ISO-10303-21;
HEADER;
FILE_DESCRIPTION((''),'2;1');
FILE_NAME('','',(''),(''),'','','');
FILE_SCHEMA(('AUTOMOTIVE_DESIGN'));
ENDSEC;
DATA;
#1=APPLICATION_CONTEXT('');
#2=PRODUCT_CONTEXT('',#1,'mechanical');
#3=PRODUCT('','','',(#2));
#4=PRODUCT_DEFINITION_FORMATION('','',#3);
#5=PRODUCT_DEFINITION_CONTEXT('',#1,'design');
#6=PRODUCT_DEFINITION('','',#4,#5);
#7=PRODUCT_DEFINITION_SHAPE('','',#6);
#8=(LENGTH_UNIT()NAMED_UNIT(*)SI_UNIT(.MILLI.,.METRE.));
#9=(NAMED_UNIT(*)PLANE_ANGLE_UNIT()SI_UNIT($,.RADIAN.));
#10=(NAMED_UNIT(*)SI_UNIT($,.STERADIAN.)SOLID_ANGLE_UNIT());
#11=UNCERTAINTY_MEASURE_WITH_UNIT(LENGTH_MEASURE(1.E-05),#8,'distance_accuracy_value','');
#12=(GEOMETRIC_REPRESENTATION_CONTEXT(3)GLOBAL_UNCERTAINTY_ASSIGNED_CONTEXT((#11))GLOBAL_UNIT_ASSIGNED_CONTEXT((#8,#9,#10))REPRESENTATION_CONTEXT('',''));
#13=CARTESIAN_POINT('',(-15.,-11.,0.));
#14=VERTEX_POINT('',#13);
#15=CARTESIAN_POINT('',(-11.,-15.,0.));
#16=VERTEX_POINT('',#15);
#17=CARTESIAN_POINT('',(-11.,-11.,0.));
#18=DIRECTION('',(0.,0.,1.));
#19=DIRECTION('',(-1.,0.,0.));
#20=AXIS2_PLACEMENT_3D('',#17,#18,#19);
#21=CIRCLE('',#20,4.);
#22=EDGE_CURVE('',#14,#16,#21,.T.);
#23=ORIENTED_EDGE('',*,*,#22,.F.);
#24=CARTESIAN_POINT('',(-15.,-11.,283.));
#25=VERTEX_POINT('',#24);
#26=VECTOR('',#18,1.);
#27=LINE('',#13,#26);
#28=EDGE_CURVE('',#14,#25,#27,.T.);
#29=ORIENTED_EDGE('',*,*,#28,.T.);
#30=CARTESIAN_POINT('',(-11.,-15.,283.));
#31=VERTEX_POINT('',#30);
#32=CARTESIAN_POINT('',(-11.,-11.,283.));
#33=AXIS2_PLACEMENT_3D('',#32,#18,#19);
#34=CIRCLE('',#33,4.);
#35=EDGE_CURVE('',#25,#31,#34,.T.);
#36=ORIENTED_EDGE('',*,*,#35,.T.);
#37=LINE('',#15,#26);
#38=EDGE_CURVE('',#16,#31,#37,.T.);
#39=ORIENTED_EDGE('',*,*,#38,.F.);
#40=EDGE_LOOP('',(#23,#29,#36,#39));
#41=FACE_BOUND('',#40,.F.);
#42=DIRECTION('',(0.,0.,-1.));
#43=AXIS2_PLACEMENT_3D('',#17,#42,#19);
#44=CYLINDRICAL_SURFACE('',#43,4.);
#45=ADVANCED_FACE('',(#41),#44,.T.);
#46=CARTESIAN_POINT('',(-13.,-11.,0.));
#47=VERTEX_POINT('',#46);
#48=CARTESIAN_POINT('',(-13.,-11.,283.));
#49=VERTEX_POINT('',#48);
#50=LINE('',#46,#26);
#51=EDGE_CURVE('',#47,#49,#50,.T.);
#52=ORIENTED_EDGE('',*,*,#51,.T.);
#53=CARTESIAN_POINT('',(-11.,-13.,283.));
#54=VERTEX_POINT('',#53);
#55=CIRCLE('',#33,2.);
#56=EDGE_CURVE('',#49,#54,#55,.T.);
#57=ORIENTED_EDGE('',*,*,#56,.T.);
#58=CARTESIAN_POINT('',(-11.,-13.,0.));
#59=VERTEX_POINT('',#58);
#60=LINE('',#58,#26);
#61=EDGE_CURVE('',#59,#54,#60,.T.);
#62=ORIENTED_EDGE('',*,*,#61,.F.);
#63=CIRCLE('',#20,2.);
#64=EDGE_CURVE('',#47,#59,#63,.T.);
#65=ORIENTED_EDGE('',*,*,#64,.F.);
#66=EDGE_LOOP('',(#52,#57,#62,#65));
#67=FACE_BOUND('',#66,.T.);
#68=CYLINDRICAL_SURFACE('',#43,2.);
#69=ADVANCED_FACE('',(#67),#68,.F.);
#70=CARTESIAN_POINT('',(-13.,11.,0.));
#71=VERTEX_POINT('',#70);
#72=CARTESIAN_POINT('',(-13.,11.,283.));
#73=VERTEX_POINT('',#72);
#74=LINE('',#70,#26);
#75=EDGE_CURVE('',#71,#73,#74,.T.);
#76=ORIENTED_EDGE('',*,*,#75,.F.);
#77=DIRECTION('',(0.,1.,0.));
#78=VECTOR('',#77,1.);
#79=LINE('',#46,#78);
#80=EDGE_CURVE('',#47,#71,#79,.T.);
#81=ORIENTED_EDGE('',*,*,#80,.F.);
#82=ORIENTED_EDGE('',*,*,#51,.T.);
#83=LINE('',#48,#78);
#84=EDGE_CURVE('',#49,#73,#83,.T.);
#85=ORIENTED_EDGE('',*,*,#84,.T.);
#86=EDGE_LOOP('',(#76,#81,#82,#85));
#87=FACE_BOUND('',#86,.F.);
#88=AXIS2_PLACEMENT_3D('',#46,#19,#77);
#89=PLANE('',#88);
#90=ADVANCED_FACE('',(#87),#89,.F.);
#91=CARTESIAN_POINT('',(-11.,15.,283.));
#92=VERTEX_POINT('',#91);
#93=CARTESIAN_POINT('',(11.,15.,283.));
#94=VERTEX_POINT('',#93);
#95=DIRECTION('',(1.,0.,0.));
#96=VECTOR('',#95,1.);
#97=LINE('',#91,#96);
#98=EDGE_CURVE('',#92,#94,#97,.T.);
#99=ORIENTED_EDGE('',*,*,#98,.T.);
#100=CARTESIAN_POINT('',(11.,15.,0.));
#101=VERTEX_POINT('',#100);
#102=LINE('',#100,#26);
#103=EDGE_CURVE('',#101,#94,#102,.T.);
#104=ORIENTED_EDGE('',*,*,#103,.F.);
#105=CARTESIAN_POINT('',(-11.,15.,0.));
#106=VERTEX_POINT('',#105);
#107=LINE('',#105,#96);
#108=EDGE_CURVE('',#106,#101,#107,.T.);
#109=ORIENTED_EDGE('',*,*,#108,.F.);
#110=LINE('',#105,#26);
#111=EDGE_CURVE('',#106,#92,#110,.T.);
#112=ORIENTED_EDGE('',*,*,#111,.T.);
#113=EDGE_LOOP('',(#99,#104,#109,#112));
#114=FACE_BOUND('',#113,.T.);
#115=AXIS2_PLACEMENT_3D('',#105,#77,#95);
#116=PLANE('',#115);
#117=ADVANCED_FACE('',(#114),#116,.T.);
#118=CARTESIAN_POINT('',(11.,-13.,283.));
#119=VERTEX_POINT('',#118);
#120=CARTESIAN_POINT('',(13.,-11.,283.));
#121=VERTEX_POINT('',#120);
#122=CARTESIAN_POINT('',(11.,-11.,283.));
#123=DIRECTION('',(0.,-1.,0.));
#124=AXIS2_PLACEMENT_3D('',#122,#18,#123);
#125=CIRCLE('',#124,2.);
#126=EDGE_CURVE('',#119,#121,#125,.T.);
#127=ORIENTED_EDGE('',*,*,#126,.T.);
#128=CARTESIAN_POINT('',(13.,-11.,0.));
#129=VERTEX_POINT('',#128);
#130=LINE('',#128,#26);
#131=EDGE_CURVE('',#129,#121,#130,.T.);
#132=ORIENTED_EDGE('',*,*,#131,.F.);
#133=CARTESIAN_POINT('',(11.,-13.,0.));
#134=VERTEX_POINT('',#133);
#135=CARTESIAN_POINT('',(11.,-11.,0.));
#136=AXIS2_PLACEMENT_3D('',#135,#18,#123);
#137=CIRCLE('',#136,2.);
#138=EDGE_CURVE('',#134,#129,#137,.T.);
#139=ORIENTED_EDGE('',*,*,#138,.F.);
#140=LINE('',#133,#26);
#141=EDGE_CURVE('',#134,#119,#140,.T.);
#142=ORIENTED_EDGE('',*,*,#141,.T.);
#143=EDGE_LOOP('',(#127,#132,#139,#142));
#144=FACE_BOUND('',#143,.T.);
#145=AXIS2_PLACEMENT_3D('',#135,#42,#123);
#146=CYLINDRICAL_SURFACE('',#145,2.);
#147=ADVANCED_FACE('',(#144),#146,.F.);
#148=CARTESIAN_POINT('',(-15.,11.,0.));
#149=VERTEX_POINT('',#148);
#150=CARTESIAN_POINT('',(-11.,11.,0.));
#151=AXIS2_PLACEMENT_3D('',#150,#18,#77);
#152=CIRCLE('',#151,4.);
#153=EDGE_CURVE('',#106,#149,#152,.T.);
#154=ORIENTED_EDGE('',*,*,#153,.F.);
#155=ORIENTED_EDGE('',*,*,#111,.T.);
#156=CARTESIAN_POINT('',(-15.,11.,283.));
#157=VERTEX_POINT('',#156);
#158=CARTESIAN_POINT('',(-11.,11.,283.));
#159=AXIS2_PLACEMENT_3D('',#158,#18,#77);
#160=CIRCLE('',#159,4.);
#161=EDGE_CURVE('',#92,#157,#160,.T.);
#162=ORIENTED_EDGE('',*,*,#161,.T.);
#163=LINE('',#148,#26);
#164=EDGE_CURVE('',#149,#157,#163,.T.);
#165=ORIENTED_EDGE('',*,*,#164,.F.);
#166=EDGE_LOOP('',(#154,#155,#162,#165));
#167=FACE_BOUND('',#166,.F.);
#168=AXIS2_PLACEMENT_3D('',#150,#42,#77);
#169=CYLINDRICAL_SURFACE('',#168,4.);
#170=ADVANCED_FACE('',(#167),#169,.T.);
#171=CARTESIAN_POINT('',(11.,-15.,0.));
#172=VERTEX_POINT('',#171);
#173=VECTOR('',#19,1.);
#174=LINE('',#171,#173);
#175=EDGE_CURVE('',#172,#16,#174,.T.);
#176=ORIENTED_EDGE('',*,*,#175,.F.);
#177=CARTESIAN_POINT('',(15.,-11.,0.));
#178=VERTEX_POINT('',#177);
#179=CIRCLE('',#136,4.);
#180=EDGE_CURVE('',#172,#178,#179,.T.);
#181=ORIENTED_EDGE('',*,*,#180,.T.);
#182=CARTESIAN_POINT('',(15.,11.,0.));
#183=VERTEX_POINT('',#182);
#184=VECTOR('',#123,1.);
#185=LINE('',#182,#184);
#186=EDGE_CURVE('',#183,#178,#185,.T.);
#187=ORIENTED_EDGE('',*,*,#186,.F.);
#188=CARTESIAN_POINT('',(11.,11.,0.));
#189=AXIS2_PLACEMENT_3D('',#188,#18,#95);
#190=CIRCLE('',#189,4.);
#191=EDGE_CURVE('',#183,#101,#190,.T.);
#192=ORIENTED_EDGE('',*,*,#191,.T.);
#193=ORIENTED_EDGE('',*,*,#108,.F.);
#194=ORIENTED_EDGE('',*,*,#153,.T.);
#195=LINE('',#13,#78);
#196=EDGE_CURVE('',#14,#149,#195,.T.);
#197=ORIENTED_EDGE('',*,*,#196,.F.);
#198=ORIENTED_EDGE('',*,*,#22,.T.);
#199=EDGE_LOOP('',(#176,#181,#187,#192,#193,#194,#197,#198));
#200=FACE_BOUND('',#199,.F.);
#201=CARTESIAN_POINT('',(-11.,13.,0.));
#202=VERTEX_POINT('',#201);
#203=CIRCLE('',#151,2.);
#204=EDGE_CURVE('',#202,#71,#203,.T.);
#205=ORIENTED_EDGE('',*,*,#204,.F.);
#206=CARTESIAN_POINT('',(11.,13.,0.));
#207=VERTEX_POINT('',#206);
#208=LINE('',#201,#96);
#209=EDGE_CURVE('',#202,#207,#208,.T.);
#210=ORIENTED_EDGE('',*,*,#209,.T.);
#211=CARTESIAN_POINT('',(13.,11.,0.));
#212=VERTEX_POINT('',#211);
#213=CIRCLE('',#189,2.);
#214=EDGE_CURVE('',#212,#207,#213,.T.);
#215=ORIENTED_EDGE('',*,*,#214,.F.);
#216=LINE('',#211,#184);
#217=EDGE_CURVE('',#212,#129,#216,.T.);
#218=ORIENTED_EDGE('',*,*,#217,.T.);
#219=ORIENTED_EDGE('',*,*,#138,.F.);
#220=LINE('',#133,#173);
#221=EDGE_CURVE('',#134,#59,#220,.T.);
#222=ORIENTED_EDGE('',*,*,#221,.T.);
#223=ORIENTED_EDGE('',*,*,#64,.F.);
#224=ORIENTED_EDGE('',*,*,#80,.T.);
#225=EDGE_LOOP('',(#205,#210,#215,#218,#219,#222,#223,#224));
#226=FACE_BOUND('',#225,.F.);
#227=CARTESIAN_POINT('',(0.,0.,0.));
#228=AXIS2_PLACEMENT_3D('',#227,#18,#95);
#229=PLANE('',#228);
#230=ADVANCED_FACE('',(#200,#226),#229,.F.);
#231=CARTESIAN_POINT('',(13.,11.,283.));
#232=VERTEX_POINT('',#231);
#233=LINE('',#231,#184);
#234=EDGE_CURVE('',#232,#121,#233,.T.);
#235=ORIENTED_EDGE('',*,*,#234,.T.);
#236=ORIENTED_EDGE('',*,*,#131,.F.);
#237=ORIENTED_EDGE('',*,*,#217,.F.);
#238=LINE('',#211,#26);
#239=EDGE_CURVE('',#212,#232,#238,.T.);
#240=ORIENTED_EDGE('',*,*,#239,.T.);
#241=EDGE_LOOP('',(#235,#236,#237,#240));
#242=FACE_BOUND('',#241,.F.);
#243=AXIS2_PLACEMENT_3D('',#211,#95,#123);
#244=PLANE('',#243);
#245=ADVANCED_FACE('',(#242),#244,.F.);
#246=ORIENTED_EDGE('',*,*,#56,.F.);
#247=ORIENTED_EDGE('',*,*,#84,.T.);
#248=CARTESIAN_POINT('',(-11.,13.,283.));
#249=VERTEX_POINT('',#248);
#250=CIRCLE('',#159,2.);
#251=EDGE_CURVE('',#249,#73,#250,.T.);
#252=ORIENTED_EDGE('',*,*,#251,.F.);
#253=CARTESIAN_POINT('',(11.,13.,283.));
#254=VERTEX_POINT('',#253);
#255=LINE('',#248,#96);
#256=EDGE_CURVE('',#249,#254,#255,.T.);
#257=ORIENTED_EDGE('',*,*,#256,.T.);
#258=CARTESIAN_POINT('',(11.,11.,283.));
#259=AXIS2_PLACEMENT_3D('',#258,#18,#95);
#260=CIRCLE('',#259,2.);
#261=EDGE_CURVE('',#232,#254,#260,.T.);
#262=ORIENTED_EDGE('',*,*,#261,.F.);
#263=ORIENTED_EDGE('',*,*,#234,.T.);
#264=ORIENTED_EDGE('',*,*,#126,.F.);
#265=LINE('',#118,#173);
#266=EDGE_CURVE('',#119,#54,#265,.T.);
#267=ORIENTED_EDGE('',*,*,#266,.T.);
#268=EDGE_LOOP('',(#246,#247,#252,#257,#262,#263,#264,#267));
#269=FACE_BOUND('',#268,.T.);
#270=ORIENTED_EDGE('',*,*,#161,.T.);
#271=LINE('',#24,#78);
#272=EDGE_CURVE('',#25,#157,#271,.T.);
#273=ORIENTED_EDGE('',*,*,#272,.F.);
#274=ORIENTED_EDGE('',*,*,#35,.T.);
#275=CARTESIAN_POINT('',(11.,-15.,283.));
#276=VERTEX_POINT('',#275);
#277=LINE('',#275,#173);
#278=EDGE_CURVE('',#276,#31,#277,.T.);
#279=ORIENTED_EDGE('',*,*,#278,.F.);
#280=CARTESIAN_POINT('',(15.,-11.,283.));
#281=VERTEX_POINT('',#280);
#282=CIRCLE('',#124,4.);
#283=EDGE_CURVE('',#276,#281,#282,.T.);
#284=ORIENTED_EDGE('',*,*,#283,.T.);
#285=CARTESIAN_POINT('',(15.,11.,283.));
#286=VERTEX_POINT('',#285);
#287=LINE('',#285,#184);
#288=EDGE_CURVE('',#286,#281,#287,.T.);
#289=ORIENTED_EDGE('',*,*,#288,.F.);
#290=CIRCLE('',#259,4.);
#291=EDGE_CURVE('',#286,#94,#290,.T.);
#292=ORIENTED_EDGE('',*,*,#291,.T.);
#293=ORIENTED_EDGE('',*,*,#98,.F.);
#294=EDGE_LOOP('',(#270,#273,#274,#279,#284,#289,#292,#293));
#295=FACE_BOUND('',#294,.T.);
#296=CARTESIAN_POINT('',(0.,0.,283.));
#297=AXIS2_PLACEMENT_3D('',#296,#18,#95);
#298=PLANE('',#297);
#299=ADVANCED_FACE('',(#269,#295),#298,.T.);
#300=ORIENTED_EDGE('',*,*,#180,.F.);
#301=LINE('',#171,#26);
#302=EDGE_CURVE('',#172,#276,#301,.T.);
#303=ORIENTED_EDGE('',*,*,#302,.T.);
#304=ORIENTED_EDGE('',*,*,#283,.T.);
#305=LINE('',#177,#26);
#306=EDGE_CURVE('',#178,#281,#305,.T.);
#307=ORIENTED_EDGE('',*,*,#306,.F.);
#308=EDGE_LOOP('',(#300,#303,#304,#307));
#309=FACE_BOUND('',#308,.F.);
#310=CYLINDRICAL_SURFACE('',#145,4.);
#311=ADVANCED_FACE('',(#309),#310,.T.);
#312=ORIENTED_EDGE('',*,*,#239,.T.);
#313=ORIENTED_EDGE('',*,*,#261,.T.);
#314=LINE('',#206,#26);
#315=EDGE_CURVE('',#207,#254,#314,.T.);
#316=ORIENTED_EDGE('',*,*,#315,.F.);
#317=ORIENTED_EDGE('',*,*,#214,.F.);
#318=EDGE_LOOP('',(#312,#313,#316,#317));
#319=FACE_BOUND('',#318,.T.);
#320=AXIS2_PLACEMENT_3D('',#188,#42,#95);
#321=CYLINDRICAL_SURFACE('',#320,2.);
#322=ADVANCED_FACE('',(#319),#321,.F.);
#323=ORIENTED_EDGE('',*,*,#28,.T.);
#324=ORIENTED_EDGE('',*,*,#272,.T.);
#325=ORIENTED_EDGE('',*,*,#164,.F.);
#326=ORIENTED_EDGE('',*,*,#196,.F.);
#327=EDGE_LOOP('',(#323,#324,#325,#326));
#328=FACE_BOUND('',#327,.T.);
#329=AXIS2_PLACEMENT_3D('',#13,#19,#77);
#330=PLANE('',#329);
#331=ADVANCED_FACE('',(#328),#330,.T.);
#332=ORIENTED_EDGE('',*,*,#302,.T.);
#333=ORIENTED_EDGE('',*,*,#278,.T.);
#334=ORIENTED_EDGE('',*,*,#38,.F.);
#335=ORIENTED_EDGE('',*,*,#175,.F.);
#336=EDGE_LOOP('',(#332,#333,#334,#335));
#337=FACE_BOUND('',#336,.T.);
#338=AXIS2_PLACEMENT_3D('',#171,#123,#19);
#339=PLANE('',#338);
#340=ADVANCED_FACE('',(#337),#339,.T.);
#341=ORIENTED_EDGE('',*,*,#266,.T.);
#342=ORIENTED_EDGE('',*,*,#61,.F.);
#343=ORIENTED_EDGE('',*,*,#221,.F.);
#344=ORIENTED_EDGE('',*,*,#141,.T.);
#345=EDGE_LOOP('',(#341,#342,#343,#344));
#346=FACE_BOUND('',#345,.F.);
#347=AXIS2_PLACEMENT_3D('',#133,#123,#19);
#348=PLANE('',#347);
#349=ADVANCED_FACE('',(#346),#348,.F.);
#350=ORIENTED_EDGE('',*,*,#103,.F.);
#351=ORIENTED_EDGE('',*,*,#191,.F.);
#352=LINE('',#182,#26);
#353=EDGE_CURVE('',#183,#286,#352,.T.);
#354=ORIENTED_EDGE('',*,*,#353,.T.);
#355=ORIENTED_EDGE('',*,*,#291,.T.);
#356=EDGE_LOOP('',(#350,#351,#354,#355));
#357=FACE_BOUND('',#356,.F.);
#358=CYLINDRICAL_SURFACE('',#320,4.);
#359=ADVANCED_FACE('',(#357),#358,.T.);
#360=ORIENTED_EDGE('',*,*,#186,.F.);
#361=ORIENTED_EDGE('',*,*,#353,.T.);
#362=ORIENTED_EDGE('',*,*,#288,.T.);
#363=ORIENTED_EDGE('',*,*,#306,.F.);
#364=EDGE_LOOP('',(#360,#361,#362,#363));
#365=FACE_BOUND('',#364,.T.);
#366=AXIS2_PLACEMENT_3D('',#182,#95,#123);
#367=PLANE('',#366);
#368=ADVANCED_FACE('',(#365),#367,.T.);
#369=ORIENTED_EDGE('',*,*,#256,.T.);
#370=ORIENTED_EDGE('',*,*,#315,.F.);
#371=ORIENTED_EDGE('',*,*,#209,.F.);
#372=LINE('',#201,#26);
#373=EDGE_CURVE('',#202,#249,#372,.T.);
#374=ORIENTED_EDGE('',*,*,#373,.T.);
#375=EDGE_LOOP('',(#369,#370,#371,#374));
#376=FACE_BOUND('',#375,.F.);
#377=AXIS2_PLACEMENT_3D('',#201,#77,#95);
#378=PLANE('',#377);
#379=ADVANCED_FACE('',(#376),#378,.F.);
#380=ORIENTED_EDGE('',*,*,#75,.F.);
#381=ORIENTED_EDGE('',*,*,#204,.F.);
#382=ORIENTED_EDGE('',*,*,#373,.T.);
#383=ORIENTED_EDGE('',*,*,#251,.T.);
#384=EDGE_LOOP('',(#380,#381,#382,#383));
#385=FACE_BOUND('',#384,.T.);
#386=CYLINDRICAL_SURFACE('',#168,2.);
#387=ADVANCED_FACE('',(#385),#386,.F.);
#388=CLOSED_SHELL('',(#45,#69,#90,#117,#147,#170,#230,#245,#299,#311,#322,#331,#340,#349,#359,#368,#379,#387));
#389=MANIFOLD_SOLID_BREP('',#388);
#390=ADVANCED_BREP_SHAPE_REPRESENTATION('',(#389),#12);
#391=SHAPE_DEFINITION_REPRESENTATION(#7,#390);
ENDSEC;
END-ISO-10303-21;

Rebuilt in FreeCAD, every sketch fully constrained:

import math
import FreeCAD as App
import Part
import Sketcher
from FreeCAD import Vector
Q = App.Units.Quantity

doc = App.newDocument("Part")
body = doc.addObject("PartDesign::Body", "Body")

# Sketch on XY plane
sketch1 = body.newObject("Sketcher::SketchObject", "Sketch")
sketch1.AttachmentSupport = (doc.getObject("XY_Plane"), [""])
sketch1.MapMode = "FlatFace"
sketch1.addGeometry(Part.LineSegment(Vector(-15, 11, 0), Vector(-15, -11, 0)), False)
sketch1.addGeometry(Part.ArcOfCircle(Part.Circle(Vector(-11, -11, 0), Vector(0, 0, 1), 4), math.radians(180), math.radians(270)), False)
sketch1.addGeometry(Part.LineSegment(Vector(-11, -15, 0), Vector(11, -15, 0)), False)
sketch1.addGeometry(Part.ArcOfCircle(Part.Circle(Vector(11, -11, 0), Vector(0, 0, 1), 4), math.radians(-90), math.radians(0)), False)
sketch1.addGeometry(Part.LineSegment(Vector(15, -11, 0), Vector(15, 11, 0)), False)
sketch1.addGeometry(Part.ArcOfCircle(Part.Circle(Vector(11, 11, 0), Vector(0, 0, 1), 4), math.radians(0), math.radians(90)), False)
sketch1.addGeometry(Part.LineSegment(Vector(11, 15, 0), Vector(-11, 15, 0)), False)
sketch1.addGeometry(Part.ArcOfCircle(Part.Circle(Vector(-11, 11, 0), Vector(0, 0, 1), 4), math.radians(90), math.radians(180)), False)
sketch1.addGeometry(Part.ArcOfCircle(Part.Circle(Vector(-11, 11, 0), Vector(0, 0, 1), 2), math.radians(90), math.radians(180)), False)
sketch1.addGeometry(Part.LineSegment(Vector(-11, 13, 0), Vector(11, 13, 0)), False)
sketch1.addGeometry(Part.ArcOfCircle(Part.Circle(Vector(11, 11, 0), Vector(0, 0, 1), 2), math.radians(0), math.radians(90)), False)
sketch1.addGeometry(Part.LineSegment(Vector(13, 11, 0), Vector(13, -11, 0)), False)
sketch1.addGeometry(Part.ArcOfCircle(Part.Circle(Vector(11, -11, 0), Vector(0, 0, 1), 2), math.radians(-90), math.radians(0)), False)
sketch1.addGeometry(Part.LineSegment(Vector(11, -13, 0), Vector(-11, -13, 0)), False)
sketch1.addGeometry(Part.ArcOfCircle(Part.Circle(Vector(-11, -11, 0), Vector(0, 0, 1), 2), math.radians(180), math.radians(270)), False)
sketch1.addGeometry(Part.LineSegment(Vector(-13, -11, 0), Vector(-13, 11, 0)), False)
sketch1.addConstraint(Sketcher.Constraint("Tangent", 0, 2, 1, 1))
sketch1.addConstraint(Sketcher.Constraint("Tangent", 1, 2, 2, 1))
sketch1.addConstraint(Sketcher.Constraint("Tangent", 2, 2, 3, 1))
sketch1.addConstraint(Sketcher.Constraint("Tangent", 3, 2, 4, 1))
sketch1.addConstraint(Sketcher.Constraint("Tangent", 4, 2, 5, 1))
sketch1.addConstraint(Sketcher.Constraint("Tangent", 5, 2, 6, 1))
sketch1.addConstraint(Sketcher.Constraint("Tangent", 6, 2, 7, 1))
sketch1.addConstraint(Sketcher.Constraint("Tangent", 7, 2, 0, 1))
sketch1.addConstraint(Sketcher.Constraint("Tangent", 8, 1, 9, 1))
sketch1.addConstraint(Sketcher.Constraint("Tangent", 9, 2, 10, 2))
sketch1.addConstraint(Sketcher.Constraint("Tangent", 10, 1, 11, 1))
sketch1.addConstraint(Sketcher.Constraint("Tangent", 11, 2, 12, 2))
sketch1.addConstraint(Sketcher.Constraint("Tangent", 12, 1, 13, 1))
sketch1.addConstraint(Sketcher.Constraint("Tangent", 13, 2, 14, 2))
sketch1.addConstraint(Sketcher.Constraint("Tangent", 14, 1, 15, 1))
sketch1.addConstraint(Sketcher.Constraint("Tangent", 15, 2, 8, 2))
sketch1.addConstraint(Sketcher.Constraint("Vertical", 0))
sketch1.addConstraint(Sketcher.Constraint("Horizontal", 2))
sketch1.addConstraint(Sketcher.Constraint("Vertical", 4))
sketch1.addConstraint(Sketcher.Constraint("Horizontal", 6))
sketch1.addConstraint(Sketcher.Constraint("Horizontal", 9))
sketch1.addConstraint(Sketcher.Constraint("Vertical", 11))
sketch1.addConstraint(Sketcher.Constraint("Horizontal", 13))
sketch1.addConstraint(Sketcher.Constraint("Vertical", 15))
sketch1.addConstraint(Sketcher.Constraint("Coincident", 8, 3, 7, 3))
sketch1.addConstraint(Sketcher.Constraint("Coincident", 10, 3, 5, 3))
sketch1.addConstraint(Sketcher.Constraint("Coincident", 12, 3, 3, 3))
sketch1.addConstraint(Sketcher.Constraint("Equal", 1, 3))
sketch1.addConstraint(Sketcher.Constraint("Equal", 3, 5))
sketch1.addConstraint(Sketcher.Constraint("Equal", 5, 7))
sketch1.addConstraint(Sketcher.Constraint("Equal", 12, 14))
sketch1.addConstraint(Sketcher.Constraint("Symmetric", 1, 3, 5, 3, -1, 1))
sketch1.addConstraint(Sketcher.Constraint("Equal", 13, 0))
sketch1.addConstraint(Sketcher.Constraint("Radius", 1, Q("4 mm")))
sketch1.addConstraint(Sketcher.Constraint("Radius", 8, Q("2 mm")))
sketch1.addConstraint(Sketcher.Constraint("DistanceX", 0, 2, -1, 1, Q("15 mm")))
pad1 = body.newObject("PartDesign::Pad", "Pad")
pad1.Profile = sketch1
pad1.Length = 283

doc.recompute()
